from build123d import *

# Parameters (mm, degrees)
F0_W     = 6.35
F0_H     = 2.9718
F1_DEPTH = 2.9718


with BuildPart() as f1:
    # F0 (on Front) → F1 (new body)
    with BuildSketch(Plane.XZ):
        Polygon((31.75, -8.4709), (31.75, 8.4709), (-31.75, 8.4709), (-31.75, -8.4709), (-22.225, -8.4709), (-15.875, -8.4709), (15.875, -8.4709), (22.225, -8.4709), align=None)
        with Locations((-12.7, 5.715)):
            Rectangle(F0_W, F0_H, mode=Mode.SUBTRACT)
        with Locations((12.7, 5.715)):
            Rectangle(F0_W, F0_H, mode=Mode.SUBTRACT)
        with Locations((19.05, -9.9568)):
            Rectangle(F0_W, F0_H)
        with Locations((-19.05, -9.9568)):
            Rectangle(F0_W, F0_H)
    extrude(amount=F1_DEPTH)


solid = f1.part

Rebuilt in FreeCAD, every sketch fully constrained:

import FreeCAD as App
import Part
import Sketcher
from FreeCAD import Vector
Q = App.Units.Quantity

doc = App.newDocument("Part")
body = doc.addObject("PartDesign::Body", "Body")

sketch1 = doc.addObject("Sketcher::SketchObject", "Sketch")
body.addObject(sketch1)
sketch1.AttachmentSupport = (doc.XZ_Plane, [""])
sketch1.MapMode = "FlatFace"
sketch1.addGeometry([
    Part.LineSegment(Vector(31.8, -8.5, 0), Vector(31.8, 8.5, 0)),
    Part.LineSegment(Vector(31.8, 8.5, 0), Vector(-31.8, 8.5, 0)),
    Part.LineSegment(Vector(-31.8, 8.5, 0), Vector(-31.8, -8.5, 0)),
    Part.LineSegment(Vector(-31.8, -8.5, 0), Vector(-22.2, -8.5, 0)),
    Part.LineSegment(Vector(-22.2, -8.5, 0), Vector(-22.2, -11.4, 0)),
    Part.LineSegment(Vector(-22.2, -11.4, 0), Vector(-15.9, -11.4, 0)),
    Part.LineSegment(Vector(-15.9, -11.4, 0), Vector(-15.9, -8.5, 0)),
    Part.LineSegment(Vector(-15.9, -8.5, 0), Vector(15.9, -8.5, 0)),
    Part.LineSegment(Vector(15.9, -8.5, 0), Vector(15.9, -11.4, 0)),
    Part.LineSegment(Vector(15.9, -11.4, 0), Vector(22.2, -11.4, 0)),
    Part.LineSegment(Vector(22.2, -11.4, 0), Vector(22.2, -8.5, 0)),
    Part.LineSegment(Vector(22.2, -8.5, 0), Vector(31.8, -8.5, 0)),
    Part.LineSegment(Vector(-9.5, 4.2, 0), Vector(-15.9, 4.2, 0)),
    Part.LineSegment(Vector(-15.9, 4.2, 0), Vector(-15.9, 7.2, 0)),
    Part.LineSegment(Vector(-15.9, 7.2, 0), Vector(-9.5, 7.2, 0)),
    Part.LineSegment(Vector(-9.5, 7.2, 0), Vector(-9.5, 4.2, 0)),
    Part.LineSegment(Vector(15.9, 4.2, 0), Vector(9.5, 4.2, 0)),
    Part.LineSegment(Vector(9.5, 4.2, 0), Vector(9.5, 7.2, 0)),
    Part.LineSegment(Vector(9.5, 7.2, 0), Vector(15.9, 7.2, 0)),
    Part.LineSegment(Vector(15.9, 7.2, 0), Vector(15.9, 4.2, 0)),
], False)
sketch1.addConstraint([
    Sketcher.Constraint("Coincident", 0, 2, 1, 1),
    Sketcher.Constraint("Coincident", 1, 2, 2, 1),
    Sketcher.Constraint("Coincident", 2, 2, 3, 1),
    Sketcher.Constraint("Coincident", 3, 2, 4, 1),
    Sketcher.Constraint("Coincident", 4, 2, 5, 1),
    Sketcher.Constraint("Coincident", 5, 2, 6, 1),
    Sketcher.Constraint("Coincident", 6, 2, 7, 1),
    Sketcher.Constraint("Coincident", 7, 2, 8, 1),
    Sketcher.Constraint("Coincident", 8, 2, 9, 1),
    Sketcher.Constraint("Coincident", 9, 2, 10, 1),
    Sketcher.Constraint("Coincident", 10, 2, 11, 1),
    Sketcher.Constraint("Coincident", 11, 2, 0, 1),
    Sketcher.Constraint("Coincident", 12, 2, 13, 1),
    Sketcher.Constraint("Coincident", 13, 2, 14, 1),
    Sketcher.Constraint("Coincident", 14, 2, 15, 1),
    Sketcher.Constraint("Coincident", 15, 2, 12, 1),
    Sketcher.Constraint("Coincident", 16, 2, 17, 1),
    Sketcher.Constraint("Coincident", 17, 2, 18, 1),
    Sketcher.Constraint("Coincident", 18, 2, 19, 1),
    Sketcher.Constraint("Coincident", 19, 2, 16, 1),
    Sketcher.Constraint("Vertical", 0),
    Sketcher.Constraint("Horizontal", 1),
    Sketcher.Constraint("Vertical", 2),
    Sketcher.Constraint("Horizontal", 3),
    Sketcher.Constraint("Vertical", 4),
    Sketcher.Constraint("Horizontal", 5),
    Sketcher.Constraint("Vertical", 6),
    Sketcher.Constraint("Horizontal", 7),
    Sketcher.Constraint("Vertical", 8),
    Sketcher.Constraint("Horizontal", 9),
    Sketcher.Constraint("Vertical", 10),
    Sketcher.Constraint("Horizontal", 11),
    Sketcher.Constraint("Horizontal", 12),
    Sketcher.Constraint("Vertical", 13),
    Sketcher.Constraint("Horizontal", 14),
    Sketcher.Constraint("Vertical", 15),
    Sketcher.Constraint("Horizontal", 16),
    Sketcher.Constraint("Vertical", 17),
    Sketcher.Constraint("Horizontal", 18),
    Sketcher.Constraint("Vertical", 19),
    Sketcher.Constraint("Symmetric", 0, 2, 2, 2, -1, 1),
    Sketcher.Constraint("Symmetric", 5, 2, 8, 2, -2),
    Sketcher.Constraint("Symmetric", 3, 2, 10, 2, -2),
    Sketcher.Constraint("Symmetric", 15, 2, 16, 2, -2),
    Sketcher.Constraint("Symmetric", 13, 2, 18, 2, -2),
    Sketcher.Constraint("Horizontal", 3, 2, 6, 2),
    Sketcher.Constraint("Vertical", 6, 2, 12, 2),
    Sketcher.Constraint("Equal", 9, 12),
    Sketcher.Constraint("Equal", 10, 13),
    Sketcher.Constraint("DistanceX", 1, 2, 1, 1, Q("2.5 in")),
    Sketcher.Constraint("DistanceX", 5, 1, 5, 2, Q("0.25 in")),
    Sketcher.Constraint("DistanceX", 7, 1, 7, 2, Q("1.25 in")),
    Sketcher.Constraint("DistanceY", 6, 2, 12, 2, Q("0.5 in")),
    Sketcher.Constraint("DistanceY", 0, 1, 0, 2, Q("0.667 in")),
    Sketcher.Constraint("DistanceY", 4, 2, 4, 1, Q("0.117 in")),
])
pad1 = doc.addObject("PartDesign::Pad", "Pad")
body.addObject(pad1)
pad1.Profile = sketch1
pad1.Length = Q("0.117 in")

doc.recompute()
